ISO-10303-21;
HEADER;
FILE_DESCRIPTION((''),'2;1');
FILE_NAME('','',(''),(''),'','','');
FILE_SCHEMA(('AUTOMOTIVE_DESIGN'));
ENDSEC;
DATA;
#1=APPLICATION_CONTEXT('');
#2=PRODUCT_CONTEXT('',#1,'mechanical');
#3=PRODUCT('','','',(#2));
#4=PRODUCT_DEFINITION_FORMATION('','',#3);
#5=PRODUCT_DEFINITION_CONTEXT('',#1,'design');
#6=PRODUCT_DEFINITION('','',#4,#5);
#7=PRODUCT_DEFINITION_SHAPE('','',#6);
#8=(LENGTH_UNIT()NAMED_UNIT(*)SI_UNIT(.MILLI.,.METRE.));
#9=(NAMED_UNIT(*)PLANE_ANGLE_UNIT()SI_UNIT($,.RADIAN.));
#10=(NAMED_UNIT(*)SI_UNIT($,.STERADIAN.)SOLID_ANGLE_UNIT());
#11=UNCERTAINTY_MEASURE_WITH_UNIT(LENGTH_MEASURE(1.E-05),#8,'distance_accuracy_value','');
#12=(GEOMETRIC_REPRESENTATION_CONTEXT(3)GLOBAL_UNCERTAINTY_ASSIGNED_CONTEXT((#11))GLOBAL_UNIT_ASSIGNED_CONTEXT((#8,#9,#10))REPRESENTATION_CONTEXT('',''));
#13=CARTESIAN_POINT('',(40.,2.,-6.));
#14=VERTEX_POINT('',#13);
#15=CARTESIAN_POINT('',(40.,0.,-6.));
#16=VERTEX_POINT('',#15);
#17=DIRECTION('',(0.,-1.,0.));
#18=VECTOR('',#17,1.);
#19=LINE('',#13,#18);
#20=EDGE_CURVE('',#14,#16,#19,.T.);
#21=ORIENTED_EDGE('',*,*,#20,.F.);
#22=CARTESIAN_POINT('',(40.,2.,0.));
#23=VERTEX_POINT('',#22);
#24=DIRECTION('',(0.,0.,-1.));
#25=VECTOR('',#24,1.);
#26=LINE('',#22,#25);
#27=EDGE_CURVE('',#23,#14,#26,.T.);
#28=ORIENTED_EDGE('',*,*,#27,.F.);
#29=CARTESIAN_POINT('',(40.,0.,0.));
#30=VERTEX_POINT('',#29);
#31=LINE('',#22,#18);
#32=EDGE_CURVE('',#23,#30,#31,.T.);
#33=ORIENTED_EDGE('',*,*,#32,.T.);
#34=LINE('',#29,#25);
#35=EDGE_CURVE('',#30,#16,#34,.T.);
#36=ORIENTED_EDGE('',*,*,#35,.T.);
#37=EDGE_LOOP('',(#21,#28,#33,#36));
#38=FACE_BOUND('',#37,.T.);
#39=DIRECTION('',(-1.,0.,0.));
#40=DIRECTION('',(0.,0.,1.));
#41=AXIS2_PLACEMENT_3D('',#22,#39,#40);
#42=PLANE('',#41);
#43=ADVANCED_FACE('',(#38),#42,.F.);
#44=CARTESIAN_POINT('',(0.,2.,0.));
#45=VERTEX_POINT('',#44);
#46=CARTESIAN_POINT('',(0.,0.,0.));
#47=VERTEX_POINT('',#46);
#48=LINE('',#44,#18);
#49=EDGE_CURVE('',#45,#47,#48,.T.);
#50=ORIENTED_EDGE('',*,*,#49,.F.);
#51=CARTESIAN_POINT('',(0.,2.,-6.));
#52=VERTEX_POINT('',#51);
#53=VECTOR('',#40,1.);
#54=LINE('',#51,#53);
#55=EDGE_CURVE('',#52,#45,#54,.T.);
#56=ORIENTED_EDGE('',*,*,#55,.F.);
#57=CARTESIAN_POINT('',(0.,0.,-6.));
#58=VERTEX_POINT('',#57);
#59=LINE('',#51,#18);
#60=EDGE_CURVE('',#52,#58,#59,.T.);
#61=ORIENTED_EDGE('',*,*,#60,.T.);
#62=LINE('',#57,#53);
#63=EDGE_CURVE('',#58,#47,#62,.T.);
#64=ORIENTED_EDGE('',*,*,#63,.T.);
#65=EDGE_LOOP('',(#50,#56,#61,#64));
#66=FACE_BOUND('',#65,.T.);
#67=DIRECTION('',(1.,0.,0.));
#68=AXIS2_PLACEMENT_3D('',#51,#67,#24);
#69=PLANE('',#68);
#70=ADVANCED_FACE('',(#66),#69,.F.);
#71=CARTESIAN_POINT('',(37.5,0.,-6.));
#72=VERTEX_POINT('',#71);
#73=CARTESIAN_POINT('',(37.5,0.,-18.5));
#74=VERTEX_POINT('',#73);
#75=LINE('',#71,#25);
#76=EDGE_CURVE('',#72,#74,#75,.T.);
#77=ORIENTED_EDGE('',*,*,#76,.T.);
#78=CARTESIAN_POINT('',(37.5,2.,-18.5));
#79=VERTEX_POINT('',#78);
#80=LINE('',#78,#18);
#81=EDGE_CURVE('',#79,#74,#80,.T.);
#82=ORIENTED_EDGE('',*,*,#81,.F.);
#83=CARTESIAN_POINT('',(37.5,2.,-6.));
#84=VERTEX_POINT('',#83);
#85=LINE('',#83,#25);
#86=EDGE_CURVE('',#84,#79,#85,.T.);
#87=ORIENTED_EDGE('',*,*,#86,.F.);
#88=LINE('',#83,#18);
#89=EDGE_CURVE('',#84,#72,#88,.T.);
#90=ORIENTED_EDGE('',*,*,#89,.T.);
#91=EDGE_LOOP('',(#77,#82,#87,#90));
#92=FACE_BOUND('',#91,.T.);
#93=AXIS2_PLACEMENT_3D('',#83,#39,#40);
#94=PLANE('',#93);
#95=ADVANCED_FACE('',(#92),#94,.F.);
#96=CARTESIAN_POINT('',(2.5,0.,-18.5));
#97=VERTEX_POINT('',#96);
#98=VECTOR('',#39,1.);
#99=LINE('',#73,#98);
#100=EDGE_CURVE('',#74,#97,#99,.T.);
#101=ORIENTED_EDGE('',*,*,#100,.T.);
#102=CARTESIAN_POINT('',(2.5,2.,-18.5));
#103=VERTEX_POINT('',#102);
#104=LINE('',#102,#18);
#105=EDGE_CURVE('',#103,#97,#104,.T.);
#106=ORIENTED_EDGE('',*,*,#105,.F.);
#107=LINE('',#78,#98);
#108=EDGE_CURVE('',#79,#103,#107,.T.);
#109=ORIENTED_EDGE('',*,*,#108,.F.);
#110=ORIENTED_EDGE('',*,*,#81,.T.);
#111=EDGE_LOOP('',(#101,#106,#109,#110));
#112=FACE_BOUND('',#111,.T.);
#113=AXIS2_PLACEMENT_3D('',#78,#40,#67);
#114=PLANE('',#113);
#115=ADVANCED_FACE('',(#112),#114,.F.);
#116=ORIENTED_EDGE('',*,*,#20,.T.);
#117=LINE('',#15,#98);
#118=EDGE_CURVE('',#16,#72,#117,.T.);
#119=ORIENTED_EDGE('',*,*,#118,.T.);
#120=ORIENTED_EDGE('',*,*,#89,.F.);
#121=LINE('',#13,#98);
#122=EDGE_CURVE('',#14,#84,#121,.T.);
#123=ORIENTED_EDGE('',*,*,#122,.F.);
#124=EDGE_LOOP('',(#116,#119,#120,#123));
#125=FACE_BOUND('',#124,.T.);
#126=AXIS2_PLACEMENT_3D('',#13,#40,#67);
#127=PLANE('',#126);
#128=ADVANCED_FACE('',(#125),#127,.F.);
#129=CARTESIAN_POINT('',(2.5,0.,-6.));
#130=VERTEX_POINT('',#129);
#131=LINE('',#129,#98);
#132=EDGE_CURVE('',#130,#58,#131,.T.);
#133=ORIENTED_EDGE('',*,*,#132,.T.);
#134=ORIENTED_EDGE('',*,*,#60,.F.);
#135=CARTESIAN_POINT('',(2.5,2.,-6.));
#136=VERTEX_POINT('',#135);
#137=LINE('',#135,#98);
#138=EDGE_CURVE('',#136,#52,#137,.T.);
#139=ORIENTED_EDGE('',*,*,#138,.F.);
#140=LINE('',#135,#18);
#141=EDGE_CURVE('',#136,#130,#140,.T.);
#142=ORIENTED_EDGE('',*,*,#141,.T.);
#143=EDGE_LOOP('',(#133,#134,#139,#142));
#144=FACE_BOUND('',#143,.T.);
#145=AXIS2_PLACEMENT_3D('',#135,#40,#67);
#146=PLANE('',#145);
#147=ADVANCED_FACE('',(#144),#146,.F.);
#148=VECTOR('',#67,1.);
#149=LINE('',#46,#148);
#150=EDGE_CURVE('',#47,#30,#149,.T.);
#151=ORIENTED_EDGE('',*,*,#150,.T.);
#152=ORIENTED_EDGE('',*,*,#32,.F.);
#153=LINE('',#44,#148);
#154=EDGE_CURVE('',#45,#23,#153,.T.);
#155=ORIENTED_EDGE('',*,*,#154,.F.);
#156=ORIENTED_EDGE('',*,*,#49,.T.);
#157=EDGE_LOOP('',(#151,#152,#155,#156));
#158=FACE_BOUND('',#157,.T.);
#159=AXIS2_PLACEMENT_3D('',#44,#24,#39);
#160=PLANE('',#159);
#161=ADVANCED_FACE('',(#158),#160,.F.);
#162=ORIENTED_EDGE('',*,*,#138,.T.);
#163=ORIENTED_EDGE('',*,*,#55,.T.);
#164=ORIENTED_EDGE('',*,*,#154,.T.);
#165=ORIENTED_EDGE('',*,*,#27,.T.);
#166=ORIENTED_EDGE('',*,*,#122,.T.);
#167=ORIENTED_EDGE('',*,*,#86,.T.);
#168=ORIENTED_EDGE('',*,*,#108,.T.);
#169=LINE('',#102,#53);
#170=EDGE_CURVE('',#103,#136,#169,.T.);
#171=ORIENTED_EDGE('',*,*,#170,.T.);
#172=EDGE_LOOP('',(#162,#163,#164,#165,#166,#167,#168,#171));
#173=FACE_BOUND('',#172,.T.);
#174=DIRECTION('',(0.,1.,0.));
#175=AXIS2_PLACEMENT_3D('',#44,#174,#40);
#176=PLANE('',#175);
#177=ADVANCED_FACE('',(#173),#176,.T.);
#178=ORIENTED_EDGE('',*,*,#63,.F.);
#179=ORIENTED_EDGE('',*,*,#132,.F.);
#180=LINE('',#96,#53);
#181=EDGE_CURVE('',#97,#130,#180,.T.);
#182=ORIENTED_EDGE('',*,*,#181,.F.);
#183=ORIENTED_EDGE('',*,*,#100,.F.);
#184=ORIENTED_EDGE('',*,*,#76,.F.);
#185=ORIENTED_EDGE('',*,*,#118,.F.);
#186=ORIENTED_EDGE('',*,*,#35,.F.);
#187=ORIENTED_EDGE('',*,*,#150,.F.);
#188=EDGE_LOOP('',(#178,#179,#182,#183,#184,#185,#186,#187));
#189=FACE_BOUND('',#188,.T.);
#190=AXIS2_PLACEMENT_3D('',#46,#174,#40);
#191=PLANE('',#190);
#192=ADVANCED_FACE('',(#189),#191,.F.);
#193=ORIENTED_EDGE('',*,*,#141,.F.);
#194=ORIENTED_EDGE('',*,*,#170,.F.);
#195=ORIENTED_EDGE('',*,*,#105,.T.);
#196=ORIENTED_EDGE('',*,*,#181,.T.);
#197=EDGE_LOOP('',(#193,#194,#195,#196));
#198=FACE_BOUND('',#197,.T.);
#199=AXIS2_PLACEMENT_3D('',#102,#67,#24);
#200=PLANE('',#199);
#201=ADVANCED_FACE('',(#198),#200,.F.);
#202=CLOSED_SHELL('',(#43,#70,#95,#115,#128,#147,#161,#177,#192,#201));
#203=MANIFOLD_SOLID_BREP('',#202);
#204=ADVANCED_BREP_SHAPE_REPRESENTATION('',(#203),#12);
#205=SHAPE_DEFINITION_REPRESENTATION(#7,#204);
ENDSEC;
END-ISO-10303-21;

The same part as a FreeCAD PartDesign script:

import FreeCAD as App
import Part
import Sketcher
from FreeCAD import Vector
Q = App.Units.Quantity

doc = App.newDocument("Part")
body = doc.addObject("PartDesign::Body", "Body")

# Sketch on XZ plane
sketch1 = body.newObject("Sketcher::SketchObject", "Sketch")
sketch1.AttachmentSupport = (doc.getObject("XZ_Plane"), [""])
sketch1.MapMode = "FlatFace"
sketch1.addGeometry(Part.LineSegment(Vector(0, 0, 0), Vector(40, 0, 0)), False)
sketch1.addGeometry(Part.LineSegment(Vector(40, 0, 0), Vector(40, -6, 0)), False)
sketch1.addGeometry(Part.LineSegment(Vector(40, -6, 0), Vector(37.5, -6, 0)), False)
sketch1.addGeometry(Part.LineSegment(Vector(37.5, -6, 0), Vector(37.5, -18.5, 0)), False)
sketch1.addGeometry(Part.LineSegment(Vector(37.5, -18.5, 0), Vector(2.5, -18.5, 0)), False)
sketch1.addGeometry(Part.LineSegment(Vector(2.5, -18.5, 0), Vector(2.5, -6, 0)), False)
sketch1.addGeometry(Part.LineSegment(Vector(2.5, -6, 0), Vector(0, -6, 0)), False)
sketch1.addGeometry(Part.LineSegment(Vector(0, -6, 0), Vector(0, 0, 0)), False)
sketch1.addConstraint(Sketcher.Constraint("Coincident", 0, 2, 1, 1))
sketch1.addConstraint(Sketcher.Constraint("Coincident", 1, 2, 2, 1))
sketch1.addConstraint(Sketcher.Constraint("Coincident", 2, 2, 3, 1))
sketch1.addConstraint(Sketcher.Constraint("Coincident", 3, 2, 4, 1))
sketch1.addConstraint(Sketcher.Constraint("Coincident", 4, 2, 5, 1))
sketch1.addConstraint(Sketcher.Constraint("Coincident", 5, 2, 6, 1))
sketch1.addConstraint(Sketcher.Constraint("Coincident", 6, 2, 7, 1))
sketch1.addConstraint(Sketcher.Constraint("Coincident", 7, 2, 0, 1))
sketch1.addConstraint(Sketcher.Constraint("Horizontal", 0))
sketch1.addConstraint(Sketcher.Constraint("Vertical", 1))
sketch1.addConstraint(Sketcher.Constraint("Horizontal", 2))
sketch1.addConstraint(Sketcher.Constraint("Vertical", 3))
sketch1.addConstraint(Sketcher.Constraint("Horizontal", 4))
sketch1.addConstraint(Sketcher.Constraint("Vertical", 5))
sketch1.addConstraint(Sketcher.Constraint("Horizontal", 6))
sketch1.addConstraint(Sketcher.Constraint("Vertical", 7))
sketch1.addConstraint(Sketcher.Constraint("Coincident", 7, 2, -1, 1))
sketch1.addConstraint(Sketcher.Constraint("Horizontal", 2, 2, 5, 2))
sketch1.addConstraint(Sketcher.Constraint("Equal", 2, 6))
sketch1.addConstraint(Sketcher.Constraint("DistanceX", 0, 1, 0, 2, Q("40 mm")))
sketch1.addConstraint(Sketcher.Constraint("DistanceX", 4, 2, 4, 1, Q("35 mm")))
sketch1.addConstraint(Sketcher.Constraint("DistanceY", 1, 2, 1, 1, Q("6 mm")))
sketch1.addConstraint(Sketcher.Constraint("DistanceY", 3, 2, 3, 1, Q("12.5 mm")))
pad1 = body.newObject("PartDesign::Pad", "Pad")
pad1.Profile = sketch1
pad1.Length = 2
pad1.Reversed = True

doc.recompute()
